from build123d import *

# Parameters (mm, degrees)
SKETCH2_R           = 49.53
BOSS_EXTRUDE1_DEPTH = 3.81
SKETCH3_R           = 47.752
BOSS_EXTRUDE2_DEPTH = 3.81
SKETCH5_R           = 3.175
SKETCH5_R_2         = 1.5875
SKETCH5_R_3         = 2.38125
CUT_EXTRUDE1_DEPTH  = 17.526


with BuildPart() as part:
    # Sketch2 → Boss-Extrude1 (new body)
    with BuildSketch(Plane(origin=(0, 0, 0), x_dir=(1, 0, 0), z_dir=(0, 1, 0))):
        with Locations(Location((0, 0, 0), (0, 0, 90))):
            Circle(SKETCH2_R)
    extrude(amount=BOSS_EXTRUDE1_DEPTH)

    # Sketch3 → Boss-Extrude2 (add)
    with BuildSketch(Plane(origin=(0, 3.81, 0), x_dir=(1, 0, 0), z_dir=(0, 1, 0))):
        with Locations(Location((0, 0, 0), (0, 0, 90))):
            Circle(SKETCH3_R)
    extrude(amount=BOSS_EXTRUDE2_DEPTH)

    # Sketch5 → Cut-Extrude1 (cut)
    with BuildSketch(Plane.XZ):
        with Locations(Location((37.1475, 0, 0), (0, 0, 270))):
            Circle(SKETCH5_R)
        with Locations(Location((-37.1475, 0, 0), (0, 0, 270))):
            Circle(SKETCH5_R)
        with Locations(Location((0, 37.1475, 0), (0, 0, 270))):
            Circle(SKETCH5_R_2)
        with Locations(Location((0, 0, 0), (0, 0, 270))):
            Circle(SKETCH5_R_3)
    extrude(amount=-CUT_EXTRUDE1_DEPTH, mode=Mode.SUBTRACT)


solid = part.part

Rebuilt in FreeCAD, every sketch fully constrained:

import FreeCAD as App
import Part
import Sketcher
Q = App.Units.Quantity

doc = App.newDocument("Part")
body = doc.addObject("PartDesign::Body", "Body")

# Sketch on XZ plane
sketch1 = body.newObject("Sketcher::SketchObject", "Sketch")
sketch1.AttachmentSupport = (doc.getObject("XZ_Plane"), [""])
sketch1.MapMode = "FlatFace"
sketch1.addGeometry(Part.Circle(App.Vector(0, 0, 0), App.Vector(0, 0, 1), 50), False)
sketch1.addConstraint(Sketcher.Constraint("Coincident", 0, 3, -1, 1))
sketch1.addConstraint(Sketcher.Constraint("Diameter", 0, Q("3.9 in")))
pad1 = body.newObject("PartDesign::Pad", "Pad")
pad1.Profile = sketch1
pad1.Length = Q("0.15 in")
pad1.Reversed = True

# Sketch on XZ plane
sketch2 = body.newObject("Sketcher::SketchObject", "Sketch001")
sketch2.AttachmentSupport = (doc.getObject("XZ_Plane"), [""])
sketch2.MapMode = "FlatFace"
sketch2.AttachmentOffset = App.Placement(App.Vector(0, 0, -0.15 * 25.4), App.Rotation())
sketch2.addGeometry(Part.Circle(App.Vector(0, 0, 0), App.Vector(0, 0, 1), 48), False)
sketch2.addConstraint(Sketcher.Constraint("Coincident", 0, 3, -1, 1))
sketch2.addConstraint(Sketcher.Constraint("Diameter", 0, Q("3.76 in")))
pad2 = body.newObject("PartDesign::Pad", "Pad001")
pad2.Profile = sketch2
pad2.Length = Q("0.15 in")
pad2.Reversed = True

# Sketch on XZ plane
sketch3 = body.newObject("Sketcher::SketchObject", "Sketch002")
sketch3.AttachmentSupport = (doc.getObject("XZ_Plane"), [""])
sketch3.MapMode = "FlatFace"
sketch3.addGeometry(Part.Circle(App.Vector(37.1, 0, 0), App.Vector(0, 0, 1), 3.2), False)
sketch3.addGeometry(Part.Circle(App.Vector(-37.1, 0, 0), App.Vector(0, 0, 1), 3.2), False)
sketch3.addGeometry(Part.Circle(App.Vector(0, 37.1, 0), App.Vector(0, 0, 1), 1.6), False)
sketch3.addGeometry(Part.Circle(App.Vector(0, 0, 0), App.Vector(0, 0, 1), 2.4), False)
sketch3.addConstraint(Sketcher.Constraint("Coincident", 3, 3, -1, 1))
sketch3.addConstraint(Sketcher.Constraint("Equal", 0, 1))
sketch3.addConstraint(Sketcher.Constraint("Symmetric", 0, 3, 1, 3, -1, 1))
sketch3.addConstraint(Sketcher.Constraint("PointOnObject", 0, 3, -1))
sketch3.addConstraint(Sketcher.Constraint("PointOnObject", 2, 3, -2))
sketch3.addConstraint(Sketcher.Constraint("Diameter", 0, Q("0.25 in")))
sketch3.addConstraint(Sketcher.Constraint("Diameter", 2, Q("0.125 in")))
sketch3.addConstraint(Sketcher.Constraint("Diameter", 3, Q("0.1875 in")))
sketch3.addConstraint(Sketcher.Constraint("DistanceX", 1, 3, 0, 3, Q("2.925 in")))
sketch3.addConstraint(Sketcher.Constraint("DistanceY", -1, 1, 2, 3, Q("1.4625 in")))
pocket1 = body.newObject("PartDesign::Pocket", "Pocket")
pocket1.Profile = sketch3
pocket1.Length = Q("0.69 in")

doc.recompute()
